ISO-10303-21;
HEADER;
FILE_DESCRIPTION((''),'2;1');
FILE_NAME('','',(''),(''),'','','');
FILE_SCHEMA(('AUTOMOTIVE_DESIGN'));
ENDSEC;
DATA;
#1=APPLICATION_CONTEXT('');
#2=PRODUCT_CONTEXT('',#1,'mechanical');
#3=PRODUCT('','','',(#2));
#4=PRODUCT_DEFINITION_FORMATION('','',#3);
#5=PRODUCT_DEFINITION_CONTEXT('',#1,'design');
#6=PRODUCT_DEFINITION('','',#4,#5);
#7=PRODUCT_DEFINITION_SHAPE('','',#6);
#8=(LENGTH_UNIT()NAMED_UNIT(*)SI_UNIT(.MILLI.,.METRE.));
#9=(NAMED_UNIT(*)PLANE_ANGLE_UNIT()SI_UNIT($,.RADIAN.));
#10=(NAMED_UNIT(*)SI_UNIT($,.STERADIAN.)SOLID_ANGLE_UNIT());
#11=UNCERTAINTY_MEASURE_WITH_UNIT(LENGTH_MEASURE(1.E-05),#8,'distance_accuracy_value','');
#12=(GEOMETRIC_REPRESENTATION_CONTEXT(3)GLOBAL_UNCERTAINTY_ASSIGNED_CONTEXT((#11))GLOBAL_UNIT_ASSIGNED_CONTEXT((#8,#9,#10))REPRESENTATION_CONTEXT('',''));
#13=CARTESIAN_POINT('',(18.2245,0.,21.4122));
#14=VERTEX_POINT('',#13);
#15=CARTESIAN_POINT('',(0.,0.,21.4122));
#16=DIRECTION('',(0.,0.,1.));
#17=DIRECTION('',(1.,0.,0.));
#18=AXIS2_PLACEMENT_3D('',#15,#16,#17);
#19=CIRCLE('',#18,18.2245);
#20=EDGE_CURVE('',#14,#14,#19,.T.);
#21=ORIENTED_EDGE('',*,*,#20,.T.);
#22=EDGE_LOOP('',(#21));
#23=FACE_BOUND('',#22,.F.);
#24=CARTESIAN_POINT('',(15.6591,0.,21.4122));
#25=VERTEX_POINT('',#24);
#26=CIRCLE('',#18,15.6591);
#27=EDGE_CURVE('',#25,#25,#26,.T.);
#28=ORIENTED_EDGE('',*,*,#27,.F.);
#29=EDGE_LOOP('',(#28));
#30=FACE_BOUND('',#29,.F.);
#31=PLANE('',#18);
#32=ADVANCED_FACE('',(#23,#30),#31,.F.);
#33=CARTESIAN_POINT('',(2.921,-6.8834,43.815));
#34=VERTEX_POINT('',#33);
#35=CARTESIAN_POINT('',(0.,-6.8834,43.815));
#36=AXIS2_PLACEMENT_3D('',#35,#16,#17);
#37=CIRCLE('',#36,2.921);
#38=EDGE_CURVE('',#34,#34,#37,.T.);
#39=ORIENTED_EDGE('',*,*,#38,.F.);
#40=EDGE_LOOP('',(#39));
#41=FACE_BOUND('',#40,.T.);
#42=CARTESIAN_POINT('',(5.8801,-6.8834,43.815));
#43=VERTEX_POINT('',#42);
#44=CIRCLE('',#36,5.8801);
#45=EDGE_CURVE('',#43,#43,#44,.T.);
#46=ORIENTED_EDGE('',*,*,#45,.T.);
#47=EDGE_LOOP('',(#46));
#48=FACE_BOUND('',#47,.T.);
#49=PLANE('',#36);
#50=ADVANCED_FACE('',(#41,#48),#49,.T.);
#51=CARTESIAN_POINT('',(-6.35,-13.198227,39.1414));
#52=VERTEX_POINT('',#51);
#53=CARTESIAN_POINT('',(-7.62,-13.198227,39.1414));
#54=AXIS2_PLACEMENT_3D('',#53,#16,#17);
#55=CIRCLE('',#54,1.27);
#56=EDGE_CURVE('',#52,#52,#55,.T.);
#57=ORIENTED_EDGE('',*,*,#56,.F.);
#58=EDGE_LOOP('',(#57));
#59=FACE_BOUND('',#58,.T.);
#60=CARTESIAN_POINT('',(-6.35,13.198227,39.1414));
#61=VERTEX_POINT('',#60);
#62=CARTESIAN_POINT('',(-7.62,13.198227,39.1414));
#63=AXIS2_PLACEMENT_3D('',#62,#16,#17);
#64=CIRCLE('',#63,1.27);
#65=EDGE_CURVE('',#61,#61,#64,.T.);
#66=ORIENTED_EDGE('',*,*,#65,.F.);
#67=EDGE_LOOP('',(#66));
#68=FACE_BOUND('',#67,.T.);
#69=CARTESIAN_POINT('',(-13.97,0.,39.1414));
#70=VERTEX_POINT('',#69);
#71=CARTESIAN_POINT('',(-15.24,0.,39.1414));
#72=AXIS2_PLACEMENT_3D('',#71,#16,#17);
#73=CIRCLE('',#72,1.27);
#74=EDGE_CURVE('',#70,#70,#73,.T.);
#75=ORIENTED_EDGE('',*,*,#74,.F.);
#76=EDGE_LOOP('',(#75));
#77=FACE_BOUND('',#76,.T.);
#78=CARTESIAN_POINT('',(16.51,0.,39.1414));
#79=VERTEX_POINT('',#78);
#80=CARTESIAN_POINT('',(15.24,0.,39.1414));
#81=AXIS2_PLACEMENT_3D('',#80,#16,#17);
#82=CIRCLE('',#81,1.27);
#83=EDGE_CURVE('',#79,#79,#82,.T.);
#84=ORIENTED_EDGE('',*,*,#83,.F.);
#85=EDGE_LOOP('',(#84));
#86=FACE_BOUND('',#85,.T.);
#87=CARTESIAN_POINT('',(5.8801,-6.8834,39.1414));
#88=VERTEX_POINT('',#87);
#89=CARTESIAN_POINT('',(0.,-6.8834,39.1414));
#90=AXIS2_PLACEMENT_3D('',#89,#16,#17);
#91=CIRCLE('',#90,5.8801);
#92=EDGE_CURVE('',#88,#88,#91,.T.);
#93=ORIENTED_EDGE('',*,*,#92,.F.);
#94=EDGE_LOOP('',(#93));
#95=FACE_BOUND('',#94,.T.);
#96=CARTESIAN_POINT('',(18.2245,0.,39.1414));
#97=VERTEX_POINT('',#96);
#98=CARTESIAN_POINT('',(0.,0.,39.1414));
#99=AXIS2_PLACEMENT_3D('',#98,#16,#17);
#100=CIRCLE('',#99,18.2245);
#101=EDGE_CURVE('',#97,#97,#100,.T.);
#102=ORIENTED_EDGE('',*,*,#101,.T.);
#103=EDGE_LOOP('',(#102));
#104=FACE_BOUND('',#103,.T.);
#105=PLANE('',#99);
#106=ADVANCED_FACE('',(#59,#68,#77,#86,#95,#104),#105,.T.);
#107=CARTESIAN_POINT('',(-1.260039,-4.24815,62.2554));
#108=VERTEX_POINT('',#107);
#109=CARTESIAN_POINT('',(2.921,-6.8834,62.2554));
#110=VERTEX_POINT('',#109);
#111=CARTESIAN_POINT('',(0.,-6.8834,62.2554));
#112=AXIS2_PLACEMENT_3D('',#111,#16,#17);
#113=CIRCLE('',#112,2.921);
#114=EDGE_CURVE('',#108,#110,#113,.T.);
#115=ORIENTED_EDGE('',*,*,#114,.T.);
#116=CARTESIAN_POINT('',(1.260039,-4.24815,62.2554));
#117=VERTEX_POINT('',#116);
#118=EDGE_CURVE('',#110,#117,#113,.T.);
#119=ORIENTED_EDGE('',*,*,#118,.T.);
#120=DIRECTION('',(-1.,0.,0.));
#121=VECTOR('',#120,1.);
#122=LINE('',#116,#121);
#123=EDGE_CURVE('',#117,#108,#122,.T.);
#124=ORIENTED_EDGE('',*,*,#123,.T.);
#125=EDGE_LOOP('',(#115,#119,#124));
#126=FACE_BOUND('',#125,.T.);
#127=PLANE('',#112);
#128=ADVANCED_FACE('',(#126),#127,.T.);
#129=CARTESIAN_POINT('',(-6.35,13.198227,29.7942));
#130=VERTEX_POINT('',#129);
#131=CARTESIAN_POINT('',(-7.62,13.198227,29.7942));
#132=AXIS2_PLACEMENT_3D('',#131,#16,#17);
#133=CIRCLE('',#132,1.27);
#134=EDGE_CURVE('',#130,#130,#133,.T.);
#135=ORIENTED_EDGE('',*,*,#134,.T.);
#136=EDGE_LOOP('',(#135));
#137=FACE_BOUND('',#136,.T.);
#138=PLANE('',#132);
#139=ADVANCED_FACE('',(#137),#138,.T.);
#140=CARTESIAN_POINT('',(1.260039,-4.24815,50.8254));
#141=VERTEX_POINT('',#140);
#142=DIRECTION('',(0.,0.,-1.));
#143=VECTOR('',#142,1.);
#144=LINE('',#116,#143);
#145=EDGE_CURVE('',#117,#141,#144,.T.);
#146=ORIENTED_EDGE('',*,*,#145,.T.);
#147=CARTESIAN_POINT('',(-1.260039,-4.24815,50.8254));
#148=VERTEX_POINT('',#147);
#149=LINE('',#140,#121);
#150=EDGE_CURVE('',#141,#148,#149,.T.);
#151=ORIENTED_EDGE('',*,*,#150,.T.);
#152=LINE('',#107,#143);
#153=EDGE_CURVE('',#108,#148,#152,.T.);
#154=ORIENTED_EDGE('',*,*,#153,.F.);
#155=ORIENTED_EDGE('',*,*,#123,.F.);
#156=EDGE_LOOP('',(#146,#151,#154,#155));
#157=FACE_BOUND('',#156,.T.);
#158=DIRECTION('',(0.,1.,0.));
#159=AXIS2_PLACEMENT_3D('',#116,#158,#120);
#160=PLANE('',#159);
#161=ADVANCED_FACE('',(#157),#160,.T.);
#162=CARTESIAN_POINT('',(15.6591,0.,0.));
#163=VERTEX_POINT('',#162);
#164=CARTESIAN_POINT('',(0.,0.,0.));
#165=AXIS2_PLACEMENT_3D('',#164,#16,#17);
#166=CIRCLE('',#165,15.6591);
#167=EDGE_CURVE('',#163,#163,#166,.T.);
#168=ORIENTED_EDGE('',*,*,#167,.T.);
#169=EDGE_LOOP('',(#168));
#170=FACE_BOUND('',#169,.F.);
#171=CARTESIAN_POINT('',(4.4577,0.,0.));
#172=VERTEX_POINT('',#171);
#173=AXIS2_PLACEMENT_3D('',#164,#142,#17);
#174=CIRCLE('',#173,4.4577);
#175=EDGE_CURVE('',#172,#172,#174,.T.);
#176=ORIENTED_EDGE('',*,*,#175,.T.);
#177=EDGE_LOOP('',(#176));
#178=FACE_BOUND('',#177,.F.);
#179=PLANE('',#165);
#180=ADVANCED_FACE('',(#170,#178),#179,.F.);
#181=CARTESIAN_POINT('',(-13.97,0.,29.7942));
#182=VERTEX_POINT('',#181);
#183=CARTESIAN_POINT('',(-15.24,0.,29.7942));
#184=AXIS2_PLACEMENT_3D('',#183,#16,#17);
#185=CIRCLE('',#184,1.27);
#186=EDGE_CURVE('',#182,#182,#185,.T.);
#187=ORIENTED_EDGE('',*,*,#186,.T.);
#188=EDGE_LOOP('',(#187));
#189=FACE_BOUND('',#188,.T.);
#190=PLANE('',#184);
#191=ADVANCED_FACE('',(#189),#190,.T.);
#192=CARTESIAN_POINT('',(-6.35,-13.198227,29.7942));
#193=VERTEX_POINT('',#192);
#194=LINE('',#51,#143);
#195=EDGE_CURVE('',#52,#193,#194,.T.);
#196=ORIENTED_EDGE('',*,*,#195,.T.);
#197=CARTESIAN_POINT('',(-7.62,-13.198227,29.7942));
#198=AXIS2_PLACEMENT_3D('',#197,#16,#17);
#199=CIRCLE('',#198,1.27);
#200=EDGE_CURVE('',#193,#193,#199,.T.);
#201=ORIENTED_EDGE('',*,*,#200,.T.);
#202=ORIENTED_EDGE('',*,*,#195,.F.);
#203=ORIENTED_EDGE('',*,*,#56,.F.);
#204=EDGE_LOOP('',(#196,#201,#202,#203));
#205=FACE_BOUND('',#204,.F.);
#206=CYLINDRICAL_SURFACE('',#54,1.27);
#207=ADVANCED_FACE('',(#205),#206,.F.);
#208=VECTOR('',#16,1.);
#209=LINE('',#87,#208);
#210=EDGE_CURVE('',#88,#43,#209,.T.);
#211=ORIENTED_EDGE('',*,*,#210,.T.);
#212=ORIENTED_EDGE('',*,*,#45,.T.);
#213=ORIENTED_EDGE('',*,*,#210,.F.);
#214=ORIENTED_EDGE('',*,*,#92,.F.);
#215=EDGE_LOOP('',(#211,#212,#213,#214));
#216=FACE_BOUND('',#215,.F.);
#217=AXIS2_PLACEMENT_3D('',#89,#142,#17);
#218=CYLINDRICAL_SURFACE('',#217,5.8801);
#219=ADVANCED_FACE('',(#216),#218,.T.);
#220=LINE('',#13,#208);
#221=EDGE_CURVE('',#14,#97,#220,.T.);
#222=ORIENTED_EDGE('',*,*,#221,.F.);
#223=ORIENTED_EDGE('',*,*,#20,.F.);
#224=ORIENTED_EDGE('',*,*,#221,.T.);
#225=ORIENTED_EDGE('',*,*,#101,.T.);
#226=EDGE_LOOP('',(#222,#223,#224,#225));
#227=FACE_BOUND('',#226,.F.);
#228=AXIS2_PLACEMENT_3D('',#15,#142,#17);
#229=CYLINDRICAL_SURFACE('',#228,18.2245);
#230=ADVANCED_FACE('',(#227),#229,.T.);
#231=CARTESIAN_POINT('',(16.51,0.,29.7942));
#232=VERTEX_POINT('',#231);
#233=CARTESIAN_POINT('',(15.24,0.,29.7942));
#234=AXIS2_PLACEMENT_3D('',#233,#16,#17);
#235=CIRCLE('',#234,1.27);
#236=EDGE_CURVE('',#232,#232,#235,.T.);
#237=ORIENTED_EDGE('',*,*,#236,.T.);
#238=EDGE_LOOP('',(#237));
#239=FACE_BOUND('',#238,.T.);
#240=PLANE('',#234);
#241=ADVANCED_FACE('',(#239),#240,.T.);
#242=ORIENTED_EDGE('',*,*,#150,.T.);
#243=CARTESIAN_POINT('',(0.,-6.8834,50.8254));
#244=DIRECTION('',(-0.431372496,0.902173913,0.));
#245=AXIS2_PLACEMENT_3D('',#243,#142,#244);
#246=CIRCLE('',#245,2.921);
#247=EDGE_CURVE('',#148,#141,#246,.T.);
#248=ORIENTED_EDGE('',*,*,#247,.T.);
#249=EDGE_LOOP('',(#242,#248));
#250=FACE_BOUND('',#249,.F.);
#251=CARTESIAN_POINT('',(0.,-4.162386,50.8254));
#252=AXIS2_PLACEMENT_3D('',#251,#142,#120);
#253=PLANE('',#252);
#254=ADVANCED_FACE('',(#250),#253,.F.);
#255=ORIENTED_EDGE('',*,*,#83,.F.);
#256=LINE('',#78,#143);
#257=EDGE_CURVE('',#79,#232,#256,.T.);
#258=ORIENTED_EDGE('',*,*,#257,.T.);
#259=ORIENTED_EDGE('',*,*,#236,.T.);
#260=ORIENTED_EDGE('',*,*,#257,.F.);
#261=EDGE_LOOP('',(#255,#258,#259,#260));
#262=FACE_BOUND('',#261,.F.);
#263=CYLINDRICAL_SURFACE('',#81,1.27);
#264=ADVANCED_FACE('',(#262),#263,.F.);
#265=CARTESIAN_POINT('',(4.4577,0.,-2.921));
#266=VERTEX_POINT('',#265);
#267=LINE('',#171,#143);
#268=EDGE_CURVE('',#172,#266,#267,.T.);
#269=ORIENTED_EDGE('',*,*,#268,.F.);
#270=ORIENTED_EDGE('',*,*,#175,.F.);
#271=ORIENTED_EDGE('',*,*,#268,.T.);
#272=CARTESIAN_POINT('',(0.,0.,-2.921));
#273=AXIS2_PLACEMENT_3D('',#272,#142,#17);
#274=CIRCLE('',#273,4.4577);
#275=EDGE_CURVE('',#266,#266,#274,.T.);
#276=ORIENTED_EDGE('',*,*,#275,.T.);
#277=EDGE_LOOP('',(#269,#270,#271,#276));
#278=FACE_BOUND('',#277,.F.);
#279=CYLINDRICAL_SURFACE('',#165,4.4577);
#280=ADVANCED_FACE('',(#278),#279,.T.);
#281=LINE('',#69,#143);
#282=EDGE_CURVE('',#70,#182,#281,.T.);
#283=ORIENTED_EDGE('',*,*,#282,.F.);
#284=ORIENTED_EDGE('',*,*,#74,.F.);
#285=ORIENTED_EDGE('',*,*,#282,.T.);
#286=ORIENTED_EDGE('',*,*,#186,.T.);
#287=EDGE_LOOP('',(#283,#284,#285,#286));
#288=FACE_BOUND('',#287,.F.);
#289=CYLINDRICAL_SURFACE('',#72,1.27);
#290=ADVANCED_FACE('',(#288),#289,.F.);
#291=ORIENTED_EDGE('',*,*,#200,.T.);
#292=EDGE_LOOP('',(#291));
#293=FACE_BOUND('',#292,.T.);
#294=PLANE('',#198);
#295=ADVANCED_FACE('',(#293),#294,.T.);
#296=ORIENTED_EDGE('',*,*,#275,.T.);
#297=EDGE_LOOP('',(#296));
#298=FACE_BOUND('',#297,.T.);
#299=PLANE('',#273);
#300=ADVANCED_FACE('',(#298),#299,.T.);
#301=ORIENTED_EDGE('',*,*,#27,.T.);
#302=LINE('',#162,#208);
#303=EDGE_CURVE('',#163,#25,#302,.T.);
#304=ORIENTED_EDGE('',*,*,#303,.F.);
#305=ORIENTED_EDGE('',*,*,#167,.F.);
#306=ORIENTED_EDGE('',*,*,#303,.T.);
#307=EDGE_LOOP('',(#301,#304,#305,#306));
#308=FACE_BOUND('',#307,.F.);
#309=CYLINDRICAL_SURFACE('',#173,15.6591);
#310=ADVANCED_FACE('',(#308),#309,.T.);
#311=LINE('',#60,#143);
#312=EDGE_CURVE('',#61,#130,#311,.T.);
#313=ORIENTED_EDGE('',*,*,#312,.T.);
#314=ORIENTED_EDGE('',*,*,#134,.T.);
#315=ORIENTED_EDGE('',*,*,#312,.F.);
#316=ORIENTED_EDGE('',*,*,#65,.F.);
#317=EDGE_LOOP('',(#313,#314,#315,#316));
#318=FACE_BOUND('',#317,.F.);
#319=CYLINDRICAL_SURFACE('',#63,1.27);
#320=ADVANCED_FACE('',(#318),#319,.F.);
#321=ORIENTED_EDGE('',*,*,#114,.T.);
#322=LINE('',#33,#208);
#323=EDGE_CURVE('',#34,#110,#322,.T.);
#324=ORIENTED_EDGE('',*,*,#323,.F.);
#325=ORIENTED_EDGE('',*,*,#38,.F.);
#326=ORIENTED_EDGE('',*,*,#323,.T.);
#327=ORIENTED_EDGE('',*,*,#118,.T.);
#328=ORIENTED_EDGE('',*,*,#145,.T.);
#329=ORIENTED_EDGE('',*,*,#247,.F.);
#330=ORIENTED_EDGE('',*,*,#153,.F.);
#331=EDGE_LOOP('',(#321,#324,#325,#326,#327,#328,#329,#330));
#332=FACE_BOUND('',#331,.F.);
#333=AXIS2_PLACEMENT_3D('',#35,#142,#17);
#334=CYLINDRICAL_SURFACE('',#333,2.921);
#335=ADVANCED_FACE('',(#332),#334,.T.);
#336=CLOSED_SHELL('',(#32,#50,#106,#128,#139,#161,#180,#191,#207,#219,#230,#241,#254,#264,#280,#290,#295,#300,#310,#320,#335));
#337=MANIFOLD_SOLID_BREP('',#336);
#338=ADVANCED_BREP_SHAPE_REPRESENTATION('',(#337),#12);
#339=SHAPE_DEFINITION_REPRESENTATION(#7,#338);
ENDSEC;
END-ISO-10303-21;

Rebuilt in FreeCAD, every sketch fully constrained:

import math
import FreeCAD as App
import Part
import Sketcher

V = App.Vector
Q = App.Units.Quantity

doc = App.newDocument("Part")
params = doc.addObject("Spreadsheet::Sheet", "Params")
for row, (alias, value) in enumerate([
    ("sketch1_diameter", "1.233 in"),
    ("pad1_length", "0.843 in"),
    ("sketch2_diameter", "1.435 in"),
    ("pad2_length", "0.698 in"),
    ("sketch3_diameter", "0.463 in"),
    ("pad3_length", "0.184 in"),
    ("sketch4_diameter", "0.23 in"),
    ("pad4_length", "0.726 in"),
    ("sketch5_diameter", "0.1 in"),
    ("pocket1_length", "0.368 in"),
    ("sketch6_diameter", "0.351 in"),
    ("pad5_length", "0.115 in"),
    ("sketch7_radius", "0.115 in"),
    ("pocket2_length", "0.45 in"),
], start=1):
    params.set(f"A{row}", alias)
    params.set(f"B{row}", "=" + value)
    params.setAlias(f"B{row}", alias)

body = doc.addObject("PartDesign::Body", "Body")

# Sketch on XY plane
sketch1 = body.newObject("Sketcher::SketchObject", "Sketch")
sketch1.AttachmentSupport = (doc.getObject("XY_Plane"), [""])
sketch1.MapMode = "FlatFace"
sketch1.addGeometry(Part.Circle(V(0, 0, 0), V(0, 0, 1), 16), False)
sketch1.addConstraint([
    Sketcher.Constraint("Coincident", 0, 3, -1, 1),
    Sketcher.Constraint("Diameter", 0, Q("1.233 in")),
])
sketch1.setExpression("Constraints[1]", "Params.sketch1_diameter")
pad1 = body.newObject("PartDesign::Pad", "Pad")
pad1.Profile = sketch1
pad1.setExpression("Length", "Params.pad1_length")

# Sketch on XY plane
sketch2 = body.newObject("Sketcher::SketchObject", "Sketch001")
sketch2.AttachmentSupport = (doc.getObject("XY_Plane"), [""])
sketch2.MapMode = "FlatFace"
sketch2.AttachmentOffset = App.Placement(V(0, 0, 0.843 * 25.4), App.Rotation())
sketch2.addGeometry(Part.Circle(V(0, 0, 0), V(0, 0, 1), 18), False)
sketch2.addConstraint([
    Sketcher.Constraint("Coincident", 0, 3, -1, 1),
    Sketcher.Constraint("Diameter", 0, Q("1.435 in")),
])
sketch2.setExpression("Constraints[1]", "Params.sketch2_diameter")
pad2 = body.newObject("PartDesign::Pad", "Pad001")
pad2.Profile = sketch2
pad2.setExpression("Length", "Params.pad2_length")

# Sketch on XY plane
sketch3 = body.newObject("Sketcher::SketchObject", "Sketch002")
sketch3.AttachmentSupport = (doc.getObject("XY_Plane"), [""])
sketch3.MapMode = "FlatFace"
sketch3.AttachmentOffset = App.Placement(V(0, 0, 1.541 * 25.4), App.Rotation())
sketch3.addGeometry(Part.Circle(V(0, -7, 0), V(0, 0, 1), 6), False)
sketch3.addConstraint([
    Sketcher.Constraint("PointOnObject", 0, 3, -2),
    Sketcher.Constraint("Diameter", 0, Q("0.463 in")),
    Sketcher.Constraint("DistanceY", 0, 3, -1, 1, Q("0.271 in")),
])
sketch3.setExpression("Constraints[1]", "Params.sketch3_diameter")
pad3 = body.newObject("PartDesign::Pad", "Pad002")
pad3.Profile = sketch3
pad3.setExpression("Length", "Params.pad3_length")

# Sketch on XY plane
sketch4 = body.newObject("Sketcher::SketchObject", "Sketch003")
sketch4.AttachmentSupport = (doc.getObject("XY_Plane"), [""])
sketch4.MapMode = "FlatFace"
sketch4.AttachmentOffset = App.Placement(V(0, 0, 1.725 * 25.4), App.Rotation())
sketch4.addGeometry(Part.Circle(V(0, -6.9, 0), V(0, 0, 1), 2.9), False)
sketch4.addConstraint([
    Sketcher.Constraint("PointOnObject", 0, 3, -2),
    Sketcher.Constraint("Diameter", 0, Q("0.23 in")),
    Sketcher.Constraint("DistanceY", 0, 3, -1, 1, Q("0.271 in")),
])
sketch4.setExpression("Constraints[1]", "Params.sketch4_diameter")
pad4 = body.newObject("PartDesign::Pad", "Pad003")
pad4.Profile = sketch4
pad4.setExpression("Length", "Params.pad4_length")

# Sketch on XY plane
sketch5 = body.newObject("Sketcher::SketchObject", "Sketch004")
sketch5.AttachmentSupport = (doc.getObject("XY_Plane"), [""])
sketch5.MapMode = "FlatFace"
sketch5.AttachmentOffset = App.Placement(V(0, 0, 1.541 * 25.4), App.Rotation())
sketch5.addGeometry([
    Part.Circle(V(15.2, 0, 0), V(0, 0, 1), 1.3),
    Part.Circle(V(-15.2, 0, 0), V(0, 0, 1), 1.3),
    Part.Circle(V(-7.6, -13.2, 0), V(0, 0, 1), 1.3),
    Part.Circle(V(-7.6, 13.2, 0), V(0, 0, 1), 1.3),
], False)
sketch5.addConstraint([
    Sketcher.Constraint("Equal", 0, 1),
    Sketcher.Constraint("Equal", 1, 2),
    Sketcher.Constraint("Equal", 2, 3),
    Sketcher.Constraint("Symmetric", 0, 3, 1, 3, -1, 1),
    Sketcher.Constraint("Symmetric", 2, 3, 3, 3, -1),
    Sketcher.Constraint("PointOnObject", 0, 3, -1),
    Sketcher.Constraint("Diameter", 0, Q("0.1 in")),
    Sketcher.Constraint("DistanceX", -1, 1, 0, 3, Q("0.6 in")),
    Sketcher.Constraint("DistanceX", 2, 3, -1, 1, Q("0.3 in")),
    Sketcher.Constraint("DistanceY", 2, 3, -1, 1, 13.198227),
])
sketch5.setExpression("Constraints[6]", "Params.sketch5_diameter")
pocket1 = body.newObject("PartDesign::Pocket", "Pocket")
pocket1.Profile = sketch5
pocket1.setExpression("Length", "Params.pocket1_length")

# Sketch on XY plane
sketch6 = body.newObject("Sketcher::SketchObject", "Sketch005")
sketch6.AttachmentSupport = (doc.getObject("XY_Plane"), [""])
sketch6.MapMode = "FlatFace"
sketch6.addGeometry(Part.Circle(V(0, 0, 0), V(0, 0, 1), 4.5), False)
sketch6.addConstraint([
    Sketcher.Constraint("Coincident", 0, 3, -1, 1),
    Sketcher.Constraint("Diameter", 0, Q("0.351 in")),
])
sketch6.setExpression("Constraints[1]", "Params.sketch6_diameter")
pad5 = body.newObject("PartDesign::Pad", "Pad004")
pad5.Profile = sketch6
pad5.setExpression("Length", "Params.pad5_length")
pad5.Reversed = True

# Sketch on XY plane
sketch7 = body.newObject("Sketcher::SketchObject", "Sketch006")
sketch7.AttachmentSupport = (doc.getObject("XY_Plane"), [""])
sketch7.MapMode = "FlatFace"
sketch7.AttachmentOffset = App.Placement(V(0, 0, 2.451 * 25.4), App.Rotation())
sketch7.addGeometry([
    Part.LineSegment(V(-1.3, -4.2, 0), V(1.3, -4.2, 0)),
    Part.ArcOfCircle(Part.Circle(V(0, -6.9, 0), V(0, 0, 1), 2.9), math.radians(64), math.radians(116)),
], False)
sketch7.addConstraint([
    Sketcher.Constraint("Coincident", 0, 1, 1, 2),
    Sketcher.Constraint("Coincident", 1, 1, 0, 2),
    Sketcher.Constraint("Horizontal", 0),
    Sketcher.Constraint("PointOnObject", 1, 3, -2),
    Sketcher.Constraint("Radius", 1, Q("0.115 in")),
    Sketcher.Constraint("DistanceY", 1, 3, -1, 1, Q("0.271 in")),
    Sketcher.Constraint("DistanceX", 0, 1, 0, 2, 2.520078),
])
sketch7.setExpression("Constraints[4]", "Params.sketch7_radius")
pocket2 = body.newObject("PartDesign::Pocket", "Pocket001")
pocket2.Profile = sketch7
pocket2.setExpression("Length", "Params.pocket2_length")

doc.recompute()
